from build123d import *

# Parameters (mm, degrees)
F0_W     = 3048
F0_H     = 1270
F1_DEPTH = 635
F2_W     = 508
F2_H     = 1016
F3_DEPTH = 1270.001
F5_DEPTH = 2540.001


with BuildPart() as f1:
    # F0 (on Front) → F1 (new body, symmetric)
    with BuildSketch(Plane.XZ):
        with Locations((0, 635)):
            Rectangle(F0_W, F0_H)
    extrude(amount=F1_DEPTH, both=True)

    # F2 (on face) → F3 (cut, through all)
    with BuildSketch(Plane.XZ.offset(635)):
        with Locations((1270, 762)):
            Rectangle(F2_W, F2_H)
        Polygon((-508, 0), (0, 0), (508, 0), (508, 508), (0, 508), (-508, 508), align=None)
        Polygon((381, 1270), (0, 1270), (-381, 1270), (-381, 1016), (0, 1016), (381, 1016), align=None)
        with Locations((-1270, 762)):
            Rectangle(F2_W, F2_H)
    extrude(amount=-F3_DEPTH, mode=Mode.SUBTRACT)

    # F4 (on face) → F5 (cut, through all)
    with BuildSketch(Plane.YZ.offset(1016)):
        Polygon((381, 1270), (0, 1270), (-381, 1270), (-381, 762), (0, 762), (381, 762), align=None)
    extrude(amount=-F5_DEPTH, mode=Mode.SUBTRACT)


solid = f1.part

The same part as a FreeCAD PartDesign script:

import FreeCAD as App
import Part
import Sketcher
from FreeCAD import Vector
Q = App.Units.Quantity

doc = App.newDocument("Part")
body = doc.addObject("PartDesign::Body", "Body")

# Sketch on XZ plane
sketch1 = body.newObject("Sketcher::SketchObject", "Sketch")
sketch1.AttachmentSupport = (doc.getObject("XZ_Plane"), [""])
sketch1.MapMode = "FlatFace"
sketch1.addGeometry(Part.LineSegment(Vector(-1524, 1270, 0), Vector(-1524, 0, 0)), False)
sketch1.addGeometry(Part.LineSegment(Vector(-1524, 0, 0), Vector(1524, 0, 0)), False)
sketch1.addGeometry(Part.LineSegment(Vector(1524, 0, 0), Vector(1524, 1270, 0)), False)
sketch1.addGeometry(Part.LineSegment(Vector(1524, 1270, 0), Vector(-1524, 1270, 0)), False)
sketch1.addConstraint(Sketcher.Constraint("Coincident", 0, 2, 1, 1))
sketch1.addConstraint(Sketcher.Constraint("Coincident", 1, 2, 2, 1))
sketch1.addConstraint(Sketcher.Constraint("Coincident", 2, 2, 3, 1))
sketch1.addConstraint(Sketcher.Constraint("Coincident", 3, 2, 0, 1))
sketch1.addConstraint(Sketcher.Constraint("Vertical", 0))
sketch1.addConstraint(Sketcher.Constraint("Horizontal", 1))
sketch1.addConstraint(Sketcher.Constraint("Vertical", 2))
sketch1.addConstraint(Sketcher.Constraint("Horizontal", 3))
sketch1.addConstraint(Sketcher.Constraint("Symmetric", 0, 2, 1, 2, -1, 1))
sketch1.addConstraint(Sketcher.Constraint("DistanceX", 1, 1, 1, 2, Q("120 in")))
sketch1.addConstraint(Sketcher.Constraint("DistanceY", 0, 2, 0, 1, Q("50 in")))
pad1 = body.newObject("PartDesign::Pad", "Pad")
pad1.Profile = sketch1
pad1.Length = Q("50 in")
pad1.Midplane = True

# Sketch on XZ plane
sketch2 = body.newObject("Sketcher::SketchObject", "Sketch001")
sketch2.AttachmentSupport = (doc.getObject("XZ_Plane"), [""])
sketch2.MapMode = "FlatFace"
sketch2.AttachmentOffset = App.Placement(Vector(0, 0, 25 * 25.4), App.Rotation())
sketch2.addGeometry(Part.LineSegment(Vector(1016, 1270, 0), Vector(1016, 254, 0)), False)
sketch2.addGeometry(Part.LineSegment(Vector(1016, 254, 0), Vector(1524, 254, 0)), False)
sketch2.addGeometry(Part.LineSegment(Vector(1524, 254, 0), Vector(1524, 1270, 0)), False)
sketch2.addGeometry(Part.LineSegment(Vector(1524, 1270, 0), Vector(1016, 1270, 0)), False)
sketch2.addGeometry(Part.LineSegment(Vector(-508, 0, 0), Vector(508, 0, 0)), False)
sketch2.addGeometry(Part.LineSegment(Vector(508, 0, 0), Vector(508, 508, 0)), False)
sketch2.addGeometry(Part.LineSegment(Vector(508, 508, 0), Vector(-508, 508, 0)), False)
sketch2.addGeometry(Part.LineSegment(Vector(-508, 508, 0), Vector(-508, 0, 0)), False)
sketch2.addGeometry(Part.LineSegment(Vector(381, 1270, 0), Vector(-381, 1270, 0)), False)
sketch2.addGeometry(Part.LineSegment(Vector(-381, 1270, 0), Vector(-381, 1016, 0)), False)
sketch2.addGeometry(Part.LineSegment(Vector(-381, 1016, 0), Vector(381, 1016, 0)), False)
sketch2.addGeometry(Part.LineSegment(Vector(381, 1016, 0), Vector(381, 1270, 0)), False)
sketch2.addGeometry(Part.LineSegment(Vector(-1524, 1270, 0), Vector(-1524, 254, 0)), False)
sketch2.addGeometry(Part.LineSegment(Vector(-1524, 254, 0), Vector(-1016, 254, 0)), False)
sketch2.addGeometry(Part.LineSegment(Vector(-1016, 254, 0), Vector(-1016, 1270, 0)), False)
sketch2.addGeometry(Part.LineSegment(Vector(-1016, 1270, 0), Vector(-1524, 1270, 0)), False)
sketch2.addConstraint(Sketcher.Constraint("Coincident", 0, 2, 1, 1))
sketch2.addConstraint(Sketcher.Constraint("Coincident", 1, 2, 2, 1))
sketch2.addConstraint(Sketcher.Constraint("Coincident", 2, 2, 3, 1))
sketch2.addConstraint(Sketcher.Constraint("Coincident", 3, 2, 0, 1))
sketch2.addConstraint(Sketcher.Constraint("Coincident", 4, 2, 5, 1))
sketch2.addConstraint(Sketcher.Constraint("Coincident", 5, 2, 6, 1))
sketch2.addConstraint(Sketcher.Constraint("Coincident", 6, 2, 7, 1))
sketch2.addConstraint(Sketcher.Constraint("Coincident", 7, 2, 4, 1))
sketch2.addConstraint(Sketcher.Constraint("Coincident", 8, 2, 9, 1))
sketch2.addConstraint(Sketcher.Constraint("Coincident", 9, 2, 10, 1))
sketch2.addConstraint(Sketcher.Constraint("Coincident", 10, 2, 11, 1))
sketch2.addConstraint(Sketcher.Constraint("Coincident", 11, 2, 8, 1))
sketch2.addConstraint(Sketcher.Constraint("Coincident", 12, 2, 13, 1))
sketch2.addConstraint(Sketcher.Constraint("Coincident", 13, 2, 14, 1))
sketch2.addConstraint(Sketcher.Constraint("Coincident", 14, 2, 15, 1))
sketch2.addConstraint(Sketcher.Constraint("Coincident", 15, 2, 12, 1))
sketch2.addConstraint(Sketcher.Constraint("Vertical", 0))
sketch2.addConstraint(Sketcher.Constraint("Horizontal", 1))
sketch2.addConstraint(Sketcher.Constraint("Vertical", 2))
sketch2.addConstraint(Sketcher.Constraint("Horizontal", 3))
sketch2.addConstraint(Sketcher.Constraint("Horizontal", 4))
sketch2.addConstraint(Sketcher.Constraint("Vertical", 5))
sketch2.addConstraint(Sketcher.Constraint("Horizontal", 6))
sketch2.addConstraint(Sketcher.Constraint("Vertical", 7))
sketch2.addConstraint(Sketcher.Constraint("Horizontal", 8))
sketch2.addConstraint(Sketcher.Constraint("Vertical", 9))
sketch2.addConstraint(Sketcher.Constraint("Horizontal", 10))
sketch2.addConstraint(Sketcher.Constraint("Vertical", 11))
sketch2.addConstraint(Sketcher.Constraint("Vertical", 12))
sketch2.addConstraint(Sketcher.Constraint("Horizontal", 13))
sketch2.addConstraint(Sketcher.Constraint("Vertical", 14))
sketch2.addConstraint(Sketcher.Constraint("Horizontal", 15))
sketch2.addConstraint(Sketcher.Constraint("Symmetric", 4, 2, 7, 2, -1, 1))
sketch2.addConstraint(Sketcher.Constraint("Symmetric", 1, 2, 12, 2, -2))
sketch2.addConstraint(Sketcher.Constraint("Symmetric", 3, 2, 14, 2, -2))
sketch2.addConstraint(Sketcher.Constraint("Horizontal", 3, 2, 8, 2))
sketch2.addConstraint(Sketcher.Constraint("Equal", 6, 0))
sketch2.addConstraint(Sketcher.Constraint("Equal", 15, 5))
sketch2.addConstraint(Sketcher.Constraint("DistanceX", 1, 1, 1, 2, Q("20 in")))
sketch2.addConstraint(Sketcher.Constraint("DistanceX", 4, 1, 4, 2, Q("40 in")))
sketch2.addConstraint(Sketcher.Constraint("DistanceX", 8, 2, 8, 1, Q("30 in")))
sketch2.addConstraint(Sketcher.Constraint("DistanceY", 9, 2, 9, 1, Q("10 in")))
sketch2.addConstraint(Sketcher.Constraint("DistanceX", -1, 1, 0, 2, Q("40 in")))
sketch2.addConstraint(Sketcher.Constraint("DistanceY", -1, 1, 0, 2, Q("10 in")))
sketch2.addConstraint(Sketcher.Constraint("DistanceX", 8, 2, -1, 1, Q("15 in")))
pocket1 = body.newObject("PartDesign::Pocket", "Pocket")
pocket1.Profile = sketch2
pocket1.Type = "ThroughAll"

# Sketch on YZ plane
sketch3 = body.newObject("Sketcher::SketchObject", "Sketch002")
sketch3.AttachmentSupport = (doc.getObject("YZ_Plane"), [""])
sketch3.MapMode = "FlatFace"
sketch3.AttachmentOffset = App.Placement(Vector(0, 0, 40 * 25.4), App.Rotation())
sketch3.addGeometry(Part.LineSegment(Vector(381, 1270, 0), Vector(-381, 1270, 0)), False)
sketch3.addGeometry(Part.LineSegment(Vector(-381, 1270, 0), Vector(-381, 762, 0)), False)
sketch3.addGeometry(Part.LineSegment(Vector(-381, 762, 0), Vector(381, 762, 0)), False)
sketch3.addGeometry(Part.LineSegment(Vector(381, 762, 0), Vector(381, 1270, 0)), False)
sketch3.addConstraint(Sketcher.Constraint("Coincident", 0, 2, 1, 1))
sketch3.addConstraint(Sketcher.Constraint("Coincident", 1, 2, 2, 1))
sketch3.addConstraint(Sketcher.Constraint("Coincident", 2, 2, 3, 1))
sketch3.addConstraint(Sketcher.Constraint("Coincident", 3, 2, 0, 1))
sketch3.addConstraint(Sketcher.Constraint("Horizontal", 0))
sketch3.addConstraint(Sketcher.Constraint("Vertical", 1))
sketch3.addConstraint(Sketcher.Constraint("Horizontal", 2))
sketch3.addConstraint(Sketcher.Constraint("Vertical", 3))
sketch3.addConstraint(Sketcher.Constraint("DistanceX", 0, 2, 0, 1, Q("30 in")))
sketch3.addConstraint(Sketcher.Constraint("DistanceY", 1, 2, 1, 1, Q("20 in")))
sketch3.addConstraint(Sketcher.Constraint("DistanceX", 0, 2, -1, 1, Q("15 in")))
sketch3.addConstraint(Sketcher.Constraint("DistanceY", -1, 1, 0, 2, Q("50 in")))
pocket2 = body.newObject("PartDesign::Pocket", "Pocket001")
pocket2.Profile = sketch3
pocket2.Type = "ThroughAll"

doc.recompute()
